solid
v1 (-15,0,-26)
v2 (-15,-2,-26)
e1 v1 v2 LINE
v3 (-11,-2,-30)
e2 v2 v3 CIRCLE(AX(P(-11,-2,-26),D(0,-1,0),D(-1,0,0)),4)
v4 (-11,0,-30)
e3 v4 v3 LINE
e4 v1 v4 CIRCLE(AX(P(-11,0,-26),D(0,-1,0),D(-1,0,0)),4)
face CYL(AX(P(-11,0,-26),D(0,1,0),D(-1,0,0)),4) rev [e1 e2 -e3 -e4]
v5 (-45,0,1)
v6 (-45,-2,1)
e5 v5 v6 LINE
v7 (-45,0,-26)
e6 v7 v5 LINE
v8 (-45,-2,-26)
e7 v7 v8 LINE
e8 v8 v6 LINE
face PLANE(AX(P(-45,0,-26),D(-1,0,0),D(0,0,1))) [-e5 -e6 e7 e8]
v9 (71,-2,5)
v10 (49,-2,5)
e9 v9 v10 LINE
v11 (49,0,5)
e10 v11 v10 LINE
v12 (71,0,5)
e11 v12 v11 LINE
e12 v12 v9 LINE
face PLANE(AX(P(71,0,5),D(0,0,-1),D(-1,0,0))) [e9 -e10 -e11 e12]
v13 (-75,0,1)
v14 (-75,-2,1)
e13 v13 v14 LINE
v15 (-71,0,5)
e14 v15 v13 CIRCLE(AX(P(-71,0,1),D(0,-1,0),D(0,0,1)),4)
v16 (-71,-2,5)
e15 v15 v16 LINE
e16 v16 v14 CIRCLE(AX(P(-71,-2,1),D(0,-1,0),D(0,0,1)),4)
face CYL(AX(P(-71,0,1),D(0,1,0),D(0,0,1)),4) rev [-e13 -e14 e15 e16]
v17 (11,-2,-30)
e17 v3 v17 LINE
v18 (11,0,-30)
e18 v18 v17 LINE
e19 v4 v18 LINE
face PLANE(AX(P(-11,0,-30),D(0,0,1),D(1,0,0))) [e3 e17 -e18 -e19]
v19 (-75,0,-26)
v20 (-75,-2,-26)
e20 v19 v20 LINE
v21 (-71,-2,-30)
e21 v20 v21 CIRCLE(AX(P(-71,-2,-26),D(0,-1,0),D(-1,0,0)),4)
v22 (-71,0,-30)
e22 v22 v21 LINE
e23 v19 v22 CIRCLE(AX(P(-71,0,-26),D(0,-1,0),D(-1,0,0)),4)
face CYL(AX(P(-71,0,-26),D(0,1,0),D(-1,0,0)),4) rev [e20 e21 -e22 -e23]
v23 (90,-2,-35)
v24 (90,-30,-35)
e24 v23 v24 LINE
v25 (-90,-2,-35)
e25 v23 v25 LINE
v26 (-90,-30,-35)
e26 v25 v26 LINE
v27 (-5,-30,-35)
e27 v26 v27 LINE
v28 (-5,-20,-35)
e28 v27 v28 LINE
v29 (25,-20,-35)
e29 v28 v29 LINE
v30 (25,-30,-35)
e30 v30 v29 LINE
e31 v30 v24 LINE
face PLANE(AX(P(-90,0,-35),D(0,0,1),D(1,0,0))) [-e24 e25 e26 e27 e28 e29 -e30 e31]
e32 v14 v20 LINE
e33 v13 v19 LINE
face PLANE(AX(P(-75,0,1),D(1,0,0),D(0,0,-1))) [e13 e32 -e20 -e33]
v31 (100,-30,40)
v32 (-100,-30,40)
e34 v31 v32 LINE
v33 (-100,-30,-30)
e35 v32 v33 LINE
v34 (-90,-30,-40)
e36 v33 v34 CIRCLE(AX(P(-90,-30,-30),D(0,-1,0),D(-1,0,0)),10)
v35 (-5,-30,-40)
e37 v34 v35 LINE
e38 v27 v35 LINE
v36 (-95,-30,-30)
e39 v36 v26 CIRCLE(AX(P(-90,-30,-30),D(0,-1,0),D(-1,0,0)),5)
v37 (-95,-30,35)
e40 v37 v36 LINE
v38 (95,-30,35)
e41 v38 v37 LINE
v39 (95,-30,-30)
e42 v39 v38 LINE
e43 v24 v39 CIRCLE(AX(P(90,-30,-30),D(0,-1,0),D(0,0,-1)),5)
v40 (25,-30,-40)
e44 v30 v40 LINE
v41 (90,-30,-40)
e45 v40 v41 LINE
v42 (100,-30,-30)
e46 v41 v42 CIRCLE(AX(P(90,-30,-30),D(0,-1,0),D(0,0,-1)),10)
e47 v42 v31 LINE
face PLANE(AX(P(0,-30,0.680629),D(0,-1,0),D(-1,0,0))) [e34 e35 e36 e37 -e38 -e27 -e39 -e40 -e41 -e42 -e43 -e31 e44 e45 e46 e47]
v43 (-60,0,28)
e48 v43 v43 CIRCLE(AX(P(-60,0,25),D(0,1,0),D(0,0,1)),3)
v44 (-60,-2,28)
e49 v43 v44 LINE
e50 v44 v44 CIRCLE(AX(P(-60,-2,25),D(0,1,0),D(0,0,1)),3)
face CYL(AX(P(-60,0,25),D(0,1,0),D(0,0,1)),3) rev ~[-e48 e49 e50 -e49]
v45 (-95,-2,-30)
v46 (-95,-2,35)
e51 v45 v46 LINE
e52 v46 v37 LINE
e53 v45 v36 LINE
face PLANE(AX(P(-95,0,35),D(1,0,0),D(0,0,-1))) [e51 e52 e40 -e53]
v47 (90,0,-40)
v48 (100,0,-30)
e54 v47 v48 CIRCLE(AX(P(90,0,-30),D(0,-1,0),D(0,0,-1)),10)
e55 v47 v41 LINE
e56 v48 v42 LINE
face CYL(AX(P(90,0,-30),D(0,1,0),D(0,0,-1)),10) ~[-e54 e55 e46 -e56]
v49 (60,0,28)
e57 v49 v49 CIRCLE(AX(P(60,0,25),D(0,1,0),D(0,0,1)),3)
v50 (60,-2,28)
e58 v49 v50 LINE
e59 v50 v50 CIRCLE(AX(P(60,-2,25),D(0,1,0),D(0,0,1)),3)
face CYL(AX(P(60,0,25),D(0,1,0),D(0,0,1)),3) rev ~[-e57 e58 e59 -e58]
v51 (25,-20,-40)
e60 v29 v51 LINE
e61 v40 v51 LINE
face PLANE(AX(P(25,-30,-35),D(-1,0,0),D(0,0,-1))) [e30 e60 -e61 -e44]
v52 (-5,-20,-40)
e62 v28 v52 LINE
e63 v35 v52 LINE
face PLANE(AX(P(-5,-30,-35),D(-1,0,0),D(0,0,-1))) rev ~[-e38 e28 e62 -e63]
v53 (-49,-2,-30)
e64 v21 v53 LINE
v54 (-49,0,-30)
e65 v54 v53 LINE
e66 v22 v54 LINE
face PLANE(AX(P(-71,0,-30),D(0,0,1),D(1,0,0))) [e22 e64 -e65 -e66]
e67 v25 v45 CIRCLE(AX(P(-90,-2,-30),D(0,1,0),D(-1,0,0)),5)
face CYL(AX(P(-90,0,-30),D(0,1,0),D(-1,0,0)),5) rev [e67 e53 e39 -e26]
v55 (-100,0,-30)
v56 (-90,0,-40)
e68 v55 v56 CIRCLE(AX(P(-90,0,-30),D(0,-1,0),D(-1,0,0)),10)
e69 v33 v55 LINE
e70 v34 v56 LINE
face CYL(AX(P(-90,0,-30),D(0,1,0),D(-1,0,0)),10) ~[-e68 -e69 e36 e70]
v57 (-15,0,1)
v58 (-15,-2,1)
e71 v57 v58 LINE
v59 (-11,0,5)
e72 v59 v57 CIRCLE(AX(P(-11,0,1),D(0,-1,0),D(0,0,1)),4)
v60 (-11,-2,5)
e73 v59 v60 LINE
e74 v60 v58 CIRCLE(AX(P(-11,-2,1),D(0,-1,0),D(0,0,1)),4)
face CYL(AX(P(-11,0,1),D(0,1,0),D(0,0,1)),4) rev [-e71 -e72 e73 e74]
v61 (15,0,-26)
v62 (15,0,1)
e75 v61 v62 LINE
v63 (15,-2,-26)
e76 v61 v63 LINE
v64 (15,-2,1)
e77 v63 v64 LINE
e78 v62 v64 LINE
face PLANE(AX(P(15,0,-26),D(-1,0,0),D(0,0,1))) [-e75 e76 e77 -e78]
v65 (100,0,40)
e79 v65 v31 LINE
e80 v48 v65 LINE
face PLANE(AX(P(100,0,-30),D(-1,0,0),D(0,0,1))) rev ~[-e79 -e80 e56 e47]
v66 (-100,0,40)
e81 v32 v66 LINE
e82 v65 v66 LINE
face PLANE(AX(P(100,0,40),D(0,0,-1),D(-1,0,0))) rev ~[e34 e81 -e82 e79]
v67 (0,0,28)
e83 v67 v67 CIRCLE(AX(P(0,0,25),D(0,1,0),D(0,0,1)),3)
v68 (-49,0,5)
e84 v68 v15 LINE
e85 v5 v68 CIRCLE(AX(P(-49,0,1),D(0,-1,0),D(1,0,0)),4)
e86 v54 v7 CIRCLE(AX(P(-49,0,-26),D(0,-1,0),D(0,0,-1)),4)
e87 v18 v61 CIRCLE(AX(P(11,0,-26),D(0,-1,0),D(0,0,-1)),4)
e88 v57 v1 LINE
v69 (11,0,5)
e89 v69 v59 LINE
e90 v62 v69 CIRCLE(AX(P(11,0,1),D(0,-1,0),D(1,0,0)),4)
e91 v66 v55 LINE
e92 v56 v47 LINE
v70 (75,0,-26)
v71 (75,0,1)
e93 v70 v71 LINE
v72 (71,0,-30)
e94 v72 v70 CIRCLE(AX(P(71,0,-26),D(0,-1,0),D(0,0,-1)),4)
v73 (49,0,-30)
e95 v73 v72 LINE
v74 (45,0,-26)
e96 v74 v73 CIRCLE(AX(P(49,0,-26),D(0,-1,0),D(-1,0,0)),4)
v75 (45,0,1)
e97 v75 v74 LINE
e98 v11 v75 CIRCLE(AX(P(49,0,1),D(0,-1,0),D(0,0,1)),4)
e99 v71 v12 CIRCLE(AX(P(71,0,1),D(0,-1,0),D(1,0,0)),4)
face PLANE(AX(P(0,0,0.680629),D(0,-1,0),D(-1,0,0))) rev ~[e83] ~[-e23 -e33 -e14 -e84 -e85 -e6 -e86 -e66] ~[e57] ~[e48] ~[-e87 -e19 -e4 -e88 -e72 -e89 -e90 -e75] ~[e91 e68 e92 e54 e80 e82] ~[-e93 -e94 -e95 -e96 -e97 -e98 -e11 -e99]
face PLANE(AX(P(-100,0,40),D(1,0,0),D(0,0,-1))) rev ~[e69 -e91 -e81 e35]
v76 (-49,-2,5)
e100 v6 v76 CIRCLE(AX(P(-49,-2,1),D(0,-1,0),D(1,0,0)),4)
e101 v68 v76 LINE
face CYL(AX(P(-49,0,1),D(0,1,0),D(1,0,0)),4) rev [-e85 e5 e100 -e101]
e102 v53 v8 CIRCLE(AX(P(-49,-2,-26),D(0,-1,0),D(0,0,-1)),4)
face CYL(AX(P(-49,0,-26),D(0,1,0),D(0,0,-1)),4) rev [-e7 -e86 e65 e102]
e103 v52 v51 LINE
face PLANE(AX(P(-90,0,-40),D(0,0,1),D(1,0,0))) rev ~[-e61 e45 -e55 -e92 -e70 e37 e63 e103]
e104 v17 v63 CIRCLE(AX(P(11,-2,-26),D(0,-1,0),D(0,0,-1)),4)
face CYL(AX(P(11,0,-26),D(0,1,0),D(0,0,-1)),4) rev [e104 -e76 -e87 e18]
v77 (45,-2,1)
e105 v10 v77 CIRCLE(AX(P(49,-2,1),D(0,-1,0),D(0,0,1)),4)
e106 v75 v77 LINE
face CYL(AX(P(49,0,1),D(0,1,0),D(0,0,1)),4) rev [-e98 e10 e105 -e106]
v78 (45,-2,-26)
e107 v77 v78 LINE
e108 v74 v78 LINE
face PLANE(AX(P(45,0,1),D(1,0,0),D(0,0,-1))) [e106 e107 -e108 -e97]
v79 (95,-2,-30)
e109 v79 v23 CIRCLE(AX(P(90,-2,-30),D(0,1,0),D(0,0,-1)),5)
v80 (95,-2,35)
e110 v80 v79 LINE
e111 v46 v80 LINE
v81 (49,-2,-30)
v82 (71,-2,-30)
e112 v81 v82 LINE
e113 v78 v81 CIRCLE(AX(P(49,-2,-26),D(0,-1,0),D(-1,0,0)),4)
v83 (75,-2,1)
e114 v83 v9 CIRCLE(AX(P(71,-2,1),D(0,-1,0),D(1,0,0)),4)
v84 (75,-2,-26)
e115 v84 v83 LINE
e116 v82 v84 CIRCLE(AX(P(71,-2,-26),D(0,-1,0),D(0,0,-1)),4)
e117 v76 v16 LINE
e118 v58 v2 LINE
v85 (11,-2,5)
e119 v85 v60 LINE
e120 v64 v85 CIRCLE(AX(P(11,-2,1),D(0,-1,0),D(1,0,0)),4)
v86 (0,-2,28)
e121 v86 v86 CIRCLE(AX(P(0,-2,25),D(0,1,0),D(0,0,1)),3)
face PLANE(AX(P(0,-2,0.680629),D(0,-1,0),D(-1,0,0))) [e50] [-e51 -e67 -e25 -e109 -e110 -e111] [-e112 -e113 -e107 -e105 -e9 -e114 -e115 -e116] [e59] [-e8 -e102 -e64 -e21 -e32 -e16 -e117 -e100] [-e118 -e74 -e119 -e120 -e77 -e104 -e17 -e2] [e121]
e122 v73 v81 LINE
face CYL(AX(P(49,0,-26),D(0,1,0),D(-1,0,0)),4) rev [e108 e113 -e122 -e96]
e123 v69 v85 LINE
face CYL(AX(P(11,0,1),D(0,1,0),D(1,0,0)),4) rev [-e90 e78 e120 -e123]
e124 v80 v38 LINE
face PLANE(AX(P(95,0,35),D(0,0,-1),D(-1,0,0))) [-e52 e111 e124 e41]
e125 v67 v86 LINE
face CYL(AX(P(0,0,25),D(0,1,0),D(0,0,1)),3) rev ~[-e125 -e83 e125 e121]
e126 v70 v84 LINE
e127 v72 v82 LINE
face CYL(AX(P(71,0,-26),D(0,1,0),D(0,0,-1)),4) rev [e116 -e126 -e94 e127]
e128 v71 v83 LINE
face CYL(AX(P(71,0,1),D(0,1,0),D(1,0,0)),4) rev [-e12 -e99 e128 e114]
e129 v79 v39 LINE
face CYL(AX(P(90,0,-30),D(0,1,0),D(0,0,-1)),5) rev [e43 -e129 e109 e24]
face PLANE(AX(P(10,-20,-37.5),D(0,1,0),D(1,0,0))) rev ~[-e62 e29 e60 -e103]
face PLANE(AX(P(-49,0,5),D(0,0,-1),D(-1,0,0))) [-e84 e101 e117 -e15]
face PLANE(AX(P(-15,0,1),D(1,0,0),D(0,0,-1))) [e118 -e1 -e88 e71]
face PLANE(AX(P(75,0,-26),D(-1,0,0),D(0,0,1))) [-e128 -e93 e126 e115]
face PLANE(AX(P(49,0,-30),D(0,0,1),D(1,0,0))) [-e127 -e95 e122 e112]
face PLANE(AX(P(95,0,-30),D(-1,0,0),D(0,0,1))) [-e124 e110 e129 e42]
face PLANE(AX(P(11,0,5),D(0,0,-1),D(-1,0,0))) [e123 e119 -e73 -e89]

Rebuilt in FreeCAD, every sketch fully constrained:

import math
import FreeCAD as App
import Part
import Sketcher
from FreeCAD import Vector
Q = App.Units.Quantity


def add_polygon(sketch, points):
    """Adds a closed chain of lines whose ends are joined by coincident constraints."""
    first, n = sketch.GeometryCount, len(points)
    for a, b in zip(points, points[1:] + points[:1]):
        sketch.addGeometry(Part.LineSegment(App.Vector(*a, 0), App.Vector(*b, 0)), False)
    for i in range(n):
        sketch.addConstraint(Sketcher.Constraint("Coincident", first + i, 2, first + (i + 1) % n, 1))

doc = App.newDocument("Part")
body = doc.addObject("PartDesign::Body", "Body")

# Sketch on XZ plane
sketch1 = body.newObject("Sketcher::SketchObject", "Sketch")
sketch1.AttachmentSupport = (doc.getObject("XZ_Plane"), [""])
sketch1.MapMode = "FlatFace"
sketch1.addGeometry([
    Part.LineSegment(Vector(90, -40, 0), Vector(-90, -40, 0)),  # 0
    Part.ArcOfCircle(Part.Circle(Vector(-90, -30, 0), Vector(0, 0, 1), 10), math.radians(180), math.radians(270)),  # 1
    Part.LineSegment(Vector(-100, -30, 0), Vector(-100, 40, 0)),  # 2
    Part.LineSegment(Vector(-100, 40, 0), Vector(100, 40, 0)),  # 3
    Part.LineSegment(Vector(100, 40, 0), Vector(100, -30, 0)),  # 4
    Part.ArcOfCircle(Part.Circle(Vector(90, -30, 0), Vector(0, 0, 1), 10), math.radians(-90), math.radians(0)),  # 5
    Part.Circle(Vector(60, 25, 0), Vector(0, 0, 1), 3),  # 6
    Part.Circle(Vector(0, 25, 0), Vector(0, 0, 1), 3),  # 7
    Part.Circle(Vector(-60, 25, 0), Vector(0, 0, 1), 3),  # 8
    Part.LineSegment(Vector(49, -30, 0), Vector(71, -30, 0)),  # 9
    Part.ArcOfCircle(Part.Circle(Vector(71, -26, 0), Vector(0, 0, 1), 4), math.radians(-90), math.radians(0)),  # 10
    Part.LineSegment(Vector(75, -26, 0), Vector(75, 1, 0)),  # 11
    Part.ArcOfCircle(Part.Circle(Vector(71, 1, 0), Vector(0, 0, 1), 4), math.radians(0), math.radians(90)),  # 12
    Part.LineSegment(Vector(71, 5, 0), Vector(49, 5, 0)),  # 13
    Part.ArcOfCircle(Part.Circle(Vector(49, 1, 0), Vector(0, 0, 1), 4), math.radians(90), math.radians(180)),  # 14
    Part.LineSegment(Vector(45, 1, 0), Vector(45, -26, 0)),  # 15
    Part.ArcOfCircle(Part.Circle(Vector(49, -26, 0), Vector(0, 0, 1), 4), math.radians(180), math.radians(270)),  # 16
    Part.LineSegment(Vector(-11, -30, 0), Vector(11, -30, 0)),  # 17
    Part.ArcOfCircle(Part.Circle(Vector(11, -26, 0), Vector(0, 0, 1), 4), math.radians(-90), math.radians(0)),  # 18
    Part.LineSegment(Vector(15, -26, 0), Vector(15, 1, 0)),  # 19
    Part.ArcOfCircle(Part.Circle(Vector(11, 1, 0), Vector(0, 0, 1), 4), math.radians(0), math.radians(90)),  # 20
    Part.LineSegment(Vector(11, 5, 0), Vector(-11, 5, 0)),  # 21
    Part.ArcOfCircle(Part.Circle(Vector(-11, 1, 0), Vector(0, 0, 1), 4), math.radians(90), math.radians(180)),  # 22
    Part.LineSegment(Vector(-15, 1, 0), Vector(-15, -26, 0)),  # 23
    Part.ArcOfCircle(Part.Circle(Vector(-11, -26, 0), Vector(0, 0, 1), 4), math.radians(180), math.radians(270)),  # 24
    Part.LineSegment(Vector(-71, -30, 0), Vector(-49, -30, 0)),  # 25
    Part.ArcOfCircle(Part.Circle(Vector(-49, -26, 0), Vector(0, 0, 1), 4), math.radians(-90), math.radians(0)),  # 26
    Part.LineSegment(Vector(-45, -26, 0), Vector(-45, 1, 0)),  # 27
    Part.ArcOfCircle(Part.Circle(Vector(-49, 1, 0), Vector(0, 0, 1), 4), math.radians(0), math.radians(90)),  # 28
    Part.LineSegment(Vector(-49, 5, 0), Vector(-71, 5, 0)),  # 29
    Part.ArcOfCircle(Part.Circle(Vector(-71, 1, 0), Vector(0, 0, 1), 4), math.radians(90), math.radians(180)),  # 30
    Part.LineSegment(Vector(-75, 1, 0), Vector(-75, -26, 0)),  # 31
    Part.ArcOfCircle(Part.Circle(Vector(-71, -26, 0), Vector(0, 0, 1), 4), math.radians(180), math.radians(270)),  # 32
], False)
sketch1.addConstraint([
    Sketcher.Constraint("Tangent", 0, 2, 1, 2),
    Sketcher.Constraint("Tangent", 1, 1, 2, 1),
    Sketcher.Constraint("Coincident", 2, 2, 3, 1),
    Sketcher.Constraint("Coincident", 3, 2, 4, 1),
    Sketcher.Constraint("Tangent", 4, 2, 5, 2),
    Sketcher.Constraint("Tangent", 5, 1, 0, 1),
    Sketcher.Constraint("Tangent", 9, 2, 10, 1),
    Sketcher.Constraint("Tangent", 10, 2, 11, 1),
    Sketcher.Constraint("Tangent", 11, 2, 12, 1),
    Sketcher.Constraint("Tangent", 12, 2, 13, 1),
    Sketcher.Constraint("Tangent", 13, 2, 14, 1),
    Sketcher.Constraint("Tangent", 14, 2, 15, 1),
    Sketcher.Constraint("Tangent", 15, 2, 16, 1),
    Sketcher.Constraint("Tangent", 16, 2, 9, 1),
    Sketcher.Constraint("Tangent", 17, 2, 18, 1),
    Sketcher.Constraint("Tangent", 18, 2, 19, 1),
    Sketcher.Constraint("Tangent", 19, 2, 20, 1),
    Sketcher.Constraint("Tangent", 20, 2, 21, 1),
    Sketcher.Constraint("Tangent", 21, 2, 22, 1),
    Sketcher.Constraint("Tangent", 22, 2, 23, 1),
    Sketcher.Constraint("Tangent", 23, 2, 24, 1),
    Sketcher.Constraint("Tangent", 24, 2, 17, 1),
    Sketcher.Constraint("Tangent", 25, 2, 26, 1),
    Sketcher.Constraint("Tangent", 26, 2, 27, 1),
    Sketcher.Constraint("Tangent", 27, 2, 28, 1),
    Sketcher.Constraint("Tangent", 28, 2, 29, 1),
    Sketcher.Constraint("Tangent", 29, 2, 30, 1),
    Sketcher.Constraint("Tangent", 30, 2, 31, 1),
    Sketcher.Constraint("Tangent", 31, 2, 32, 1),
    Sketcher.Constraint("Tangent", 32, 2, 25, 1),
    Sketcher.Constraint("Horizontal", 0),
    Sketcher.Constraint("Vertical", 2),
    Sketcher.Constraint("Horizontal", 3),
    Sketcher.Constraint("Vertical", 4),
    Sketcher.Constraint("Horizontal", 9),
    Sketcher.Constraint("Vertical", 11),
    Sketcher.Constraint("Horizontal", 13),
    Sketcher.Constraint("Vertical", 15),
    Sketcher.Constraint("Horizontal", 17),
    Sketcher.Constraint("Vertical", 19),
    Sketcher.Constraint("Horizontal", 21),
    Sketcher.Constraint("Vertical", 23),
    Sketcher.Constraint("Horizontal", 25),
    Sketcher.Constraint("Vertical", 27),
    Sketcher.Constraint("Horizontal", 29),
    Sketcher.Constraint("Vertical", 31),
    Sketcher.Constraint("Equal", 1, 5),
    Sketcher.Constraint("Equal", 6, 7),
    Sketcher.Constraint("Equal", 7, 8),
    Sketcher.Constraint("Equal", 10, 12),
    Sketcher.Constraint("Equal", 12, 14),
    Sketcher.Constraint("Equal", 14, 16),
    Sketcher.Constraint("Equal", 16, 18),
    Sketcher.Constraint("Equal", 18, 20),
    Sketcher.Constraint("Equal", 20, 22),
    Sketcher.Constraint("Equal", 22, 24),
    Sketcher.Constraint("Equal", 24, 26),
    Sketcher.Constraint("Equal", 26, 28),
    Sketcher.Constraint("Equal", 28, 30),
    Sketcher.Constraint("Equal", 30, 32),
    Sketcher.Constraint("Symmetric", 6, 3, 8, 3, -2),
    Sketcher.Constraint("Symmetric", 16, 3, 26, 3, -2),
    Sketcher.Constraint("Symmetric", 12, 3, 30, 3, -2),
    Sketcher.Constraint("PointOnObject", 7, 3, -2),
    Sketcher.Constraint("Horizontal", 6, 3, 7, 3),
    Sketcher.Constraint("Horizontal", 16, 3, 18, 3),
    Sketcher.Constraint("Horizontal", 14, 3, 20, 3),
    Sketcher.Constraint("Horizontal", 4, 2, 9, 2),
    Sketcher.Constraint("Equal", 13, 17),
    Sketcher.Constraint("Diameter", 6, Q("6 mm")),
    Sketcher.Constraint("Radius", 1, Q("10 mm")),
    Sketcher.Constraint("Radius", 10, Q("4 mm")),
    Sketcher.Constraint("DistanceX", 0, 2, 0, 1, Q("180 mm")),
    Sketcher.Constraint("DistanceX", 9, 1, 9, 2, Q("22 mm")),
    Sketcher.Constraint("DistanceY", 2, 1, 2, 2, Q("70 mm")),
    Sketcher.Constraint("DistanceY", 11, 1, 11, 2, Q("27 mm")),
    Sketcher.Constraint("DistanceX", 1, 3, -1, 1, Q("90 mm")),
    Sketcher.Constraint("DistanceY", 1, 3, -1, 1, Q("30 mm")),
    Sketcher.Constraint("DistanceX", -1, 1, 6, 3, Q("60 mm")),
    Sketcher.Constraint("DistanceY", -1, 1, 6, 3, Q("25 mm")),
    Sketcher.Constraint("DistanceX", -1, 1, 10, 3, Q("71 mm")),
    Sketcher.Constraint("DistanceX", -1, 1, 18, 3, Q("11 mm")),
])
pad1 = body.newObject("PartDesign::Pad", "Pad")
pad1.Profile = sketch1
pad1.Length = 2

# Sketch on XZ plane
sketch2 = body.newObject("Sketcher::SketchObject", "Sketch001")
sketch2.AttachmentSupport = (doc.getObject("XZ_Plane"), [""])
sketch2.MapMode = "FlatFace"
sketch2.addGeometry([
    Part.LineSegment(Vector(90, -40, 0), Vector(-90, -40, 0)),  # 0
    Part.ArcOfCircle(Part.Circle(Vector(-90, -30, 0), Vector(0, 0, 1), 10), math.radians(180), math.radians(270)),  # 1
    Part.LineSegment(Vector(-100, -30, 0), Vector(-100, 40, 0)),  # 2
    Part.LineSegment(Vector(-100, 40, 0), Vector(100, 40, 0)),  # 3
    Part.LineSegment(Vector(100, 40, 0), Vector(100, -30, 0)),  # 4
    Part.ArcOfCircle(Part.Circle(Vector(90, -30, 0), Vector(0, 0, 1), 10), math.radians(-90), math.radians(0)),  # 5
    Part.LineSegment(Vector(-90, -35, 0), Vector(90, -35, 0)),  # 6
    Part.ArcOfCircle(Part.Circle(Vector(90, -30, 0), Vector(0, 0, 1), 5), math.radians(-90), math.radians(0)),  # 7
    Part.LineSegment(Vector(95, -30, 0), Vector(95, 35, 0)),  # 8
    Part.LineSegment(Vector(95, 35, 0), Vector(-95, 35, 0)),  # 9
    Part.LineSegment(Vector(-95, 35, 0), Vector(-95, -30, 0)),  # 10
    Part.ArcOfCircle(Part.Circle(Vector(-90, -30, 0), Vector(0, 0, 1), 5), math.radians(180), math.radians(270)),  # 11
], False)
sketch2.addConstraint([
    Sketcher.Constraint("Tangent", 0, 2, 1, 2),
    Sketcher.Constraint("Tangent", 1, 1, 2, 1),
    Sketcher.Constraint("Coincident", 2, 2, 3, 1),
    Sketcher.Constraint("Coincident", 3, 2, 4, 1),
    Sketcher.Constraint("Tangent", 4, 2, 5, 2),
    Sketcher.Constraint("Tangent", 5, 1, 0, 1),
    Sketcher.Constraint("Tangent", 6, 2, 7, 1),
    Sketcher.Constraint("Tangent", 7, 2, 8, 1),
    Sketcher.Constraint("Coincident", 8, 2, 9, 1),
    Sketcher.Constraint("Coincident", 9, 2, 10, 1),
    Sketcher.Constraint("Tangent", 10, 2, 11, 1),
    Sketcher.Constraint("Tangent", 11, 2, 6, 1),
    Sketcher.Constraint("Horizontal", 0),
    Sketcher.Constraint("Vertical", 2),
    Sketcher.Constraint("Horizontal", 3),
    Sketcher.Constraint("Vertical", 4),
    Sketcher.Constraint("Horizontal", 6),
    Sketcher.Constraint("Vertical", 8),
    Sketcher.Constraint("Horizontal", 9),
    Sketcher.Constraint("Vertical", 10),
    Sketcher.Constraint("Coincident", 7, 3, 5, 3),
    Sketcher.Constraint("Coincident", 11, 3, 1, 3),
    Sketcher.Constraint("Equal", 1, 5),
    Sketcher.Constraint("Radius", 1, Q("10 mm")),
    Sketcher.Constraint("Radius", 7, Q("5 mm")),
    Sketcher.Constraint("DistanceX", 0, 2, 0, 1, Q("180 mm")),
    Sketcher.Constraint("DistanceY", 2, 1, 2, 2, Q("70 mm")),
    Sketcher.Constraint("DistanceY", 8, 1, 8, 2, Q("65 mm")),
    Sketcher.Constraint("DistanceX", 1, 3, -1, 1, Q("90 mm")),
    Sketcher.Constraint("DistanceY", 1, 3, -1, 1, Q("30 mm")),
])
pad2 = body.newObject("PartDesign::Pad", "Pad001")
pad2.Profile = sketch2
pad2.Length = 30

# Sketch on XZ plane
sketch3 = body.newObject("Sketcher::SketchObject", "Sketch002")
sketch3.AttachmentSupport = (doc.getObject("XZ_Plane"), [""])
sketch3.MapMode = "FlatFace"
sketch3.AttachmentOffset = App.Placement(Vector(0, 0, 30), App.Rotation())
add_polygon(sketch3, [(-5, -40), (-5, -35), (25, -35), (25, -40)])  # lines 0-3
sketch3.addConstraint([
    Sketcher.Constraint("Vertical", 0),
    Sketcher.Constraint("Horizontal", 1),
    Sketcher.Constraint("Vertical", 2),
    Sketcher.Constraint("Horizontal", 3),
    Sketcher.Constraint("DistanceX", 1, 1, 1, 2, Q("30 mm")),
    Sketcher.Constraint("DistanceY", 0, 1, 0, 2, Q("5 mm")),
    Sketcher.Constraint("DistanceX", 0, 2, -1, 1, Q("5 mm")),
    Sketcher.Constraint("DistanceY", 0, 2, -1, 1, Q("35 mm")),
])
pocket1 = body.newObject("PartDesign::Pocket", "Pocket")
pocket1.Profile = sketch3
pocket1.Length = 10

doc.recompute()
